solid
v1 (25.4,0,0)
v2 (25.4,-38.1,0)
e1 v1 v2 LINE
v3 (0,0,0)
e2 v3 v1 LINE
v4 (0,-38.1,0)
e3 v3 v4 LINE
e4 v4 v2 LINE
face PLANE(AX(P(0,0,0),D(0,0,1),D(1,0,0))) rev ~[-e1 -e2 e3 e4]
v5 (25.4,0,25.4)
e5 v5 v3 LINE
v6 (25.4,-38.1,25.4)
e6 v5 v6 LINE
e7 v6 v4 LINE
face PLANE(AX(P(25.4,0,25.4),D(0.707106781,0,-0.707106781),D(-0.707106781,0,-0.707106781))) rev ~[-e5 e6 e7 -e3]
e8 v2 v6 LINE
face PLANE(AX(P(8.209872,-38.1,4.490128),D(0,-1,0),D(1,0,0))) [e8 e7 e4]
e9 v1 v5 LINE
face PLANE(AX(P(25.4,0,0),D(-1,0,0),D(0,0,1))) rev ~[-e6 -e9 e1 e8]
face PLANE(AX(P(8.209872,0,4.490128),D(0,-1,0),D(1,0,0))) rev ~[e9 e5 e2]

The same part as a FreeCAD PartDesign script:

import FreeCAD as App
import Part
import Sketcher

V = App.Vector
Q = App.Units.Quantity

doc = App.newDocument("Part")
params = doc.addObject("Spreadsheet::Sheet", "Params")
for row, (alias, value) in enumerate([
    ("sketch1_width", "1 in"),
    ("pad1_length", "1.5 in"),
], start=1):
    params.set(f"A{row}", alias)
    params.set(f"B{row}", "=" + value)
    params.setAlias(f"B{row}", alias)

body = doc.addObject("PartDesign::Body", "Body")

# Sketch on XZ plane
sketch1 = body.newObject("Sketcher::SketchObject", "Sketch")
sketch1.AttachmentSupport = (doc.getObject("XZ_Plane"), [""])
sketch1.MapMode = "FlatFace"
sketch1.addGeometry(Part.LineSegment(V(0, 0, 0), V(25, 0, 0)), False)
sketch1.addGeometry(Part.LineSegment(V(25, 0, 0), V(25, 25, 0)), False)
sketch1.addGeometry(Part.LineSegment(V(25, 25, 0), V(0, 0, 0)), False)
sketch1.addConstraint(Sketcher.Constraint("Coincident", 0, 2, 1, 1))
sketch1.addConstraint(Sketcher.Constraint("Coincident", 1, 2, 2, 1))
sketch1.addConstraint(Sketcher.Constraint("Coincident", 2, 2, 0, 1))
sketch1.addConstraint(Sketcher.Constraint("Horizontal", 0))
sketch1.addConstraint(Sketcher.Constraint("Vertical", 1))
sketch1.addConstraint(Sketcher.Constraint("Coincident", 2, 2, -1, 1))
sketch1.addConstraint(Sketcher.Constraint("Equal", 0, 1))
sketch1.addConstraint(Sketcher.Constraint("DistanceX", 0, 1, 0, 2, Q("1 in")))
sketch1.setExpression("Constraints[7]", "Params.sketch1_width")
pad1 = body.newObject("PartDesign::Pad", "Pad")
pad1.Profile = sketch1
pad1.setExpression("Length", "Params.pad1_length")

doc.recompute()
